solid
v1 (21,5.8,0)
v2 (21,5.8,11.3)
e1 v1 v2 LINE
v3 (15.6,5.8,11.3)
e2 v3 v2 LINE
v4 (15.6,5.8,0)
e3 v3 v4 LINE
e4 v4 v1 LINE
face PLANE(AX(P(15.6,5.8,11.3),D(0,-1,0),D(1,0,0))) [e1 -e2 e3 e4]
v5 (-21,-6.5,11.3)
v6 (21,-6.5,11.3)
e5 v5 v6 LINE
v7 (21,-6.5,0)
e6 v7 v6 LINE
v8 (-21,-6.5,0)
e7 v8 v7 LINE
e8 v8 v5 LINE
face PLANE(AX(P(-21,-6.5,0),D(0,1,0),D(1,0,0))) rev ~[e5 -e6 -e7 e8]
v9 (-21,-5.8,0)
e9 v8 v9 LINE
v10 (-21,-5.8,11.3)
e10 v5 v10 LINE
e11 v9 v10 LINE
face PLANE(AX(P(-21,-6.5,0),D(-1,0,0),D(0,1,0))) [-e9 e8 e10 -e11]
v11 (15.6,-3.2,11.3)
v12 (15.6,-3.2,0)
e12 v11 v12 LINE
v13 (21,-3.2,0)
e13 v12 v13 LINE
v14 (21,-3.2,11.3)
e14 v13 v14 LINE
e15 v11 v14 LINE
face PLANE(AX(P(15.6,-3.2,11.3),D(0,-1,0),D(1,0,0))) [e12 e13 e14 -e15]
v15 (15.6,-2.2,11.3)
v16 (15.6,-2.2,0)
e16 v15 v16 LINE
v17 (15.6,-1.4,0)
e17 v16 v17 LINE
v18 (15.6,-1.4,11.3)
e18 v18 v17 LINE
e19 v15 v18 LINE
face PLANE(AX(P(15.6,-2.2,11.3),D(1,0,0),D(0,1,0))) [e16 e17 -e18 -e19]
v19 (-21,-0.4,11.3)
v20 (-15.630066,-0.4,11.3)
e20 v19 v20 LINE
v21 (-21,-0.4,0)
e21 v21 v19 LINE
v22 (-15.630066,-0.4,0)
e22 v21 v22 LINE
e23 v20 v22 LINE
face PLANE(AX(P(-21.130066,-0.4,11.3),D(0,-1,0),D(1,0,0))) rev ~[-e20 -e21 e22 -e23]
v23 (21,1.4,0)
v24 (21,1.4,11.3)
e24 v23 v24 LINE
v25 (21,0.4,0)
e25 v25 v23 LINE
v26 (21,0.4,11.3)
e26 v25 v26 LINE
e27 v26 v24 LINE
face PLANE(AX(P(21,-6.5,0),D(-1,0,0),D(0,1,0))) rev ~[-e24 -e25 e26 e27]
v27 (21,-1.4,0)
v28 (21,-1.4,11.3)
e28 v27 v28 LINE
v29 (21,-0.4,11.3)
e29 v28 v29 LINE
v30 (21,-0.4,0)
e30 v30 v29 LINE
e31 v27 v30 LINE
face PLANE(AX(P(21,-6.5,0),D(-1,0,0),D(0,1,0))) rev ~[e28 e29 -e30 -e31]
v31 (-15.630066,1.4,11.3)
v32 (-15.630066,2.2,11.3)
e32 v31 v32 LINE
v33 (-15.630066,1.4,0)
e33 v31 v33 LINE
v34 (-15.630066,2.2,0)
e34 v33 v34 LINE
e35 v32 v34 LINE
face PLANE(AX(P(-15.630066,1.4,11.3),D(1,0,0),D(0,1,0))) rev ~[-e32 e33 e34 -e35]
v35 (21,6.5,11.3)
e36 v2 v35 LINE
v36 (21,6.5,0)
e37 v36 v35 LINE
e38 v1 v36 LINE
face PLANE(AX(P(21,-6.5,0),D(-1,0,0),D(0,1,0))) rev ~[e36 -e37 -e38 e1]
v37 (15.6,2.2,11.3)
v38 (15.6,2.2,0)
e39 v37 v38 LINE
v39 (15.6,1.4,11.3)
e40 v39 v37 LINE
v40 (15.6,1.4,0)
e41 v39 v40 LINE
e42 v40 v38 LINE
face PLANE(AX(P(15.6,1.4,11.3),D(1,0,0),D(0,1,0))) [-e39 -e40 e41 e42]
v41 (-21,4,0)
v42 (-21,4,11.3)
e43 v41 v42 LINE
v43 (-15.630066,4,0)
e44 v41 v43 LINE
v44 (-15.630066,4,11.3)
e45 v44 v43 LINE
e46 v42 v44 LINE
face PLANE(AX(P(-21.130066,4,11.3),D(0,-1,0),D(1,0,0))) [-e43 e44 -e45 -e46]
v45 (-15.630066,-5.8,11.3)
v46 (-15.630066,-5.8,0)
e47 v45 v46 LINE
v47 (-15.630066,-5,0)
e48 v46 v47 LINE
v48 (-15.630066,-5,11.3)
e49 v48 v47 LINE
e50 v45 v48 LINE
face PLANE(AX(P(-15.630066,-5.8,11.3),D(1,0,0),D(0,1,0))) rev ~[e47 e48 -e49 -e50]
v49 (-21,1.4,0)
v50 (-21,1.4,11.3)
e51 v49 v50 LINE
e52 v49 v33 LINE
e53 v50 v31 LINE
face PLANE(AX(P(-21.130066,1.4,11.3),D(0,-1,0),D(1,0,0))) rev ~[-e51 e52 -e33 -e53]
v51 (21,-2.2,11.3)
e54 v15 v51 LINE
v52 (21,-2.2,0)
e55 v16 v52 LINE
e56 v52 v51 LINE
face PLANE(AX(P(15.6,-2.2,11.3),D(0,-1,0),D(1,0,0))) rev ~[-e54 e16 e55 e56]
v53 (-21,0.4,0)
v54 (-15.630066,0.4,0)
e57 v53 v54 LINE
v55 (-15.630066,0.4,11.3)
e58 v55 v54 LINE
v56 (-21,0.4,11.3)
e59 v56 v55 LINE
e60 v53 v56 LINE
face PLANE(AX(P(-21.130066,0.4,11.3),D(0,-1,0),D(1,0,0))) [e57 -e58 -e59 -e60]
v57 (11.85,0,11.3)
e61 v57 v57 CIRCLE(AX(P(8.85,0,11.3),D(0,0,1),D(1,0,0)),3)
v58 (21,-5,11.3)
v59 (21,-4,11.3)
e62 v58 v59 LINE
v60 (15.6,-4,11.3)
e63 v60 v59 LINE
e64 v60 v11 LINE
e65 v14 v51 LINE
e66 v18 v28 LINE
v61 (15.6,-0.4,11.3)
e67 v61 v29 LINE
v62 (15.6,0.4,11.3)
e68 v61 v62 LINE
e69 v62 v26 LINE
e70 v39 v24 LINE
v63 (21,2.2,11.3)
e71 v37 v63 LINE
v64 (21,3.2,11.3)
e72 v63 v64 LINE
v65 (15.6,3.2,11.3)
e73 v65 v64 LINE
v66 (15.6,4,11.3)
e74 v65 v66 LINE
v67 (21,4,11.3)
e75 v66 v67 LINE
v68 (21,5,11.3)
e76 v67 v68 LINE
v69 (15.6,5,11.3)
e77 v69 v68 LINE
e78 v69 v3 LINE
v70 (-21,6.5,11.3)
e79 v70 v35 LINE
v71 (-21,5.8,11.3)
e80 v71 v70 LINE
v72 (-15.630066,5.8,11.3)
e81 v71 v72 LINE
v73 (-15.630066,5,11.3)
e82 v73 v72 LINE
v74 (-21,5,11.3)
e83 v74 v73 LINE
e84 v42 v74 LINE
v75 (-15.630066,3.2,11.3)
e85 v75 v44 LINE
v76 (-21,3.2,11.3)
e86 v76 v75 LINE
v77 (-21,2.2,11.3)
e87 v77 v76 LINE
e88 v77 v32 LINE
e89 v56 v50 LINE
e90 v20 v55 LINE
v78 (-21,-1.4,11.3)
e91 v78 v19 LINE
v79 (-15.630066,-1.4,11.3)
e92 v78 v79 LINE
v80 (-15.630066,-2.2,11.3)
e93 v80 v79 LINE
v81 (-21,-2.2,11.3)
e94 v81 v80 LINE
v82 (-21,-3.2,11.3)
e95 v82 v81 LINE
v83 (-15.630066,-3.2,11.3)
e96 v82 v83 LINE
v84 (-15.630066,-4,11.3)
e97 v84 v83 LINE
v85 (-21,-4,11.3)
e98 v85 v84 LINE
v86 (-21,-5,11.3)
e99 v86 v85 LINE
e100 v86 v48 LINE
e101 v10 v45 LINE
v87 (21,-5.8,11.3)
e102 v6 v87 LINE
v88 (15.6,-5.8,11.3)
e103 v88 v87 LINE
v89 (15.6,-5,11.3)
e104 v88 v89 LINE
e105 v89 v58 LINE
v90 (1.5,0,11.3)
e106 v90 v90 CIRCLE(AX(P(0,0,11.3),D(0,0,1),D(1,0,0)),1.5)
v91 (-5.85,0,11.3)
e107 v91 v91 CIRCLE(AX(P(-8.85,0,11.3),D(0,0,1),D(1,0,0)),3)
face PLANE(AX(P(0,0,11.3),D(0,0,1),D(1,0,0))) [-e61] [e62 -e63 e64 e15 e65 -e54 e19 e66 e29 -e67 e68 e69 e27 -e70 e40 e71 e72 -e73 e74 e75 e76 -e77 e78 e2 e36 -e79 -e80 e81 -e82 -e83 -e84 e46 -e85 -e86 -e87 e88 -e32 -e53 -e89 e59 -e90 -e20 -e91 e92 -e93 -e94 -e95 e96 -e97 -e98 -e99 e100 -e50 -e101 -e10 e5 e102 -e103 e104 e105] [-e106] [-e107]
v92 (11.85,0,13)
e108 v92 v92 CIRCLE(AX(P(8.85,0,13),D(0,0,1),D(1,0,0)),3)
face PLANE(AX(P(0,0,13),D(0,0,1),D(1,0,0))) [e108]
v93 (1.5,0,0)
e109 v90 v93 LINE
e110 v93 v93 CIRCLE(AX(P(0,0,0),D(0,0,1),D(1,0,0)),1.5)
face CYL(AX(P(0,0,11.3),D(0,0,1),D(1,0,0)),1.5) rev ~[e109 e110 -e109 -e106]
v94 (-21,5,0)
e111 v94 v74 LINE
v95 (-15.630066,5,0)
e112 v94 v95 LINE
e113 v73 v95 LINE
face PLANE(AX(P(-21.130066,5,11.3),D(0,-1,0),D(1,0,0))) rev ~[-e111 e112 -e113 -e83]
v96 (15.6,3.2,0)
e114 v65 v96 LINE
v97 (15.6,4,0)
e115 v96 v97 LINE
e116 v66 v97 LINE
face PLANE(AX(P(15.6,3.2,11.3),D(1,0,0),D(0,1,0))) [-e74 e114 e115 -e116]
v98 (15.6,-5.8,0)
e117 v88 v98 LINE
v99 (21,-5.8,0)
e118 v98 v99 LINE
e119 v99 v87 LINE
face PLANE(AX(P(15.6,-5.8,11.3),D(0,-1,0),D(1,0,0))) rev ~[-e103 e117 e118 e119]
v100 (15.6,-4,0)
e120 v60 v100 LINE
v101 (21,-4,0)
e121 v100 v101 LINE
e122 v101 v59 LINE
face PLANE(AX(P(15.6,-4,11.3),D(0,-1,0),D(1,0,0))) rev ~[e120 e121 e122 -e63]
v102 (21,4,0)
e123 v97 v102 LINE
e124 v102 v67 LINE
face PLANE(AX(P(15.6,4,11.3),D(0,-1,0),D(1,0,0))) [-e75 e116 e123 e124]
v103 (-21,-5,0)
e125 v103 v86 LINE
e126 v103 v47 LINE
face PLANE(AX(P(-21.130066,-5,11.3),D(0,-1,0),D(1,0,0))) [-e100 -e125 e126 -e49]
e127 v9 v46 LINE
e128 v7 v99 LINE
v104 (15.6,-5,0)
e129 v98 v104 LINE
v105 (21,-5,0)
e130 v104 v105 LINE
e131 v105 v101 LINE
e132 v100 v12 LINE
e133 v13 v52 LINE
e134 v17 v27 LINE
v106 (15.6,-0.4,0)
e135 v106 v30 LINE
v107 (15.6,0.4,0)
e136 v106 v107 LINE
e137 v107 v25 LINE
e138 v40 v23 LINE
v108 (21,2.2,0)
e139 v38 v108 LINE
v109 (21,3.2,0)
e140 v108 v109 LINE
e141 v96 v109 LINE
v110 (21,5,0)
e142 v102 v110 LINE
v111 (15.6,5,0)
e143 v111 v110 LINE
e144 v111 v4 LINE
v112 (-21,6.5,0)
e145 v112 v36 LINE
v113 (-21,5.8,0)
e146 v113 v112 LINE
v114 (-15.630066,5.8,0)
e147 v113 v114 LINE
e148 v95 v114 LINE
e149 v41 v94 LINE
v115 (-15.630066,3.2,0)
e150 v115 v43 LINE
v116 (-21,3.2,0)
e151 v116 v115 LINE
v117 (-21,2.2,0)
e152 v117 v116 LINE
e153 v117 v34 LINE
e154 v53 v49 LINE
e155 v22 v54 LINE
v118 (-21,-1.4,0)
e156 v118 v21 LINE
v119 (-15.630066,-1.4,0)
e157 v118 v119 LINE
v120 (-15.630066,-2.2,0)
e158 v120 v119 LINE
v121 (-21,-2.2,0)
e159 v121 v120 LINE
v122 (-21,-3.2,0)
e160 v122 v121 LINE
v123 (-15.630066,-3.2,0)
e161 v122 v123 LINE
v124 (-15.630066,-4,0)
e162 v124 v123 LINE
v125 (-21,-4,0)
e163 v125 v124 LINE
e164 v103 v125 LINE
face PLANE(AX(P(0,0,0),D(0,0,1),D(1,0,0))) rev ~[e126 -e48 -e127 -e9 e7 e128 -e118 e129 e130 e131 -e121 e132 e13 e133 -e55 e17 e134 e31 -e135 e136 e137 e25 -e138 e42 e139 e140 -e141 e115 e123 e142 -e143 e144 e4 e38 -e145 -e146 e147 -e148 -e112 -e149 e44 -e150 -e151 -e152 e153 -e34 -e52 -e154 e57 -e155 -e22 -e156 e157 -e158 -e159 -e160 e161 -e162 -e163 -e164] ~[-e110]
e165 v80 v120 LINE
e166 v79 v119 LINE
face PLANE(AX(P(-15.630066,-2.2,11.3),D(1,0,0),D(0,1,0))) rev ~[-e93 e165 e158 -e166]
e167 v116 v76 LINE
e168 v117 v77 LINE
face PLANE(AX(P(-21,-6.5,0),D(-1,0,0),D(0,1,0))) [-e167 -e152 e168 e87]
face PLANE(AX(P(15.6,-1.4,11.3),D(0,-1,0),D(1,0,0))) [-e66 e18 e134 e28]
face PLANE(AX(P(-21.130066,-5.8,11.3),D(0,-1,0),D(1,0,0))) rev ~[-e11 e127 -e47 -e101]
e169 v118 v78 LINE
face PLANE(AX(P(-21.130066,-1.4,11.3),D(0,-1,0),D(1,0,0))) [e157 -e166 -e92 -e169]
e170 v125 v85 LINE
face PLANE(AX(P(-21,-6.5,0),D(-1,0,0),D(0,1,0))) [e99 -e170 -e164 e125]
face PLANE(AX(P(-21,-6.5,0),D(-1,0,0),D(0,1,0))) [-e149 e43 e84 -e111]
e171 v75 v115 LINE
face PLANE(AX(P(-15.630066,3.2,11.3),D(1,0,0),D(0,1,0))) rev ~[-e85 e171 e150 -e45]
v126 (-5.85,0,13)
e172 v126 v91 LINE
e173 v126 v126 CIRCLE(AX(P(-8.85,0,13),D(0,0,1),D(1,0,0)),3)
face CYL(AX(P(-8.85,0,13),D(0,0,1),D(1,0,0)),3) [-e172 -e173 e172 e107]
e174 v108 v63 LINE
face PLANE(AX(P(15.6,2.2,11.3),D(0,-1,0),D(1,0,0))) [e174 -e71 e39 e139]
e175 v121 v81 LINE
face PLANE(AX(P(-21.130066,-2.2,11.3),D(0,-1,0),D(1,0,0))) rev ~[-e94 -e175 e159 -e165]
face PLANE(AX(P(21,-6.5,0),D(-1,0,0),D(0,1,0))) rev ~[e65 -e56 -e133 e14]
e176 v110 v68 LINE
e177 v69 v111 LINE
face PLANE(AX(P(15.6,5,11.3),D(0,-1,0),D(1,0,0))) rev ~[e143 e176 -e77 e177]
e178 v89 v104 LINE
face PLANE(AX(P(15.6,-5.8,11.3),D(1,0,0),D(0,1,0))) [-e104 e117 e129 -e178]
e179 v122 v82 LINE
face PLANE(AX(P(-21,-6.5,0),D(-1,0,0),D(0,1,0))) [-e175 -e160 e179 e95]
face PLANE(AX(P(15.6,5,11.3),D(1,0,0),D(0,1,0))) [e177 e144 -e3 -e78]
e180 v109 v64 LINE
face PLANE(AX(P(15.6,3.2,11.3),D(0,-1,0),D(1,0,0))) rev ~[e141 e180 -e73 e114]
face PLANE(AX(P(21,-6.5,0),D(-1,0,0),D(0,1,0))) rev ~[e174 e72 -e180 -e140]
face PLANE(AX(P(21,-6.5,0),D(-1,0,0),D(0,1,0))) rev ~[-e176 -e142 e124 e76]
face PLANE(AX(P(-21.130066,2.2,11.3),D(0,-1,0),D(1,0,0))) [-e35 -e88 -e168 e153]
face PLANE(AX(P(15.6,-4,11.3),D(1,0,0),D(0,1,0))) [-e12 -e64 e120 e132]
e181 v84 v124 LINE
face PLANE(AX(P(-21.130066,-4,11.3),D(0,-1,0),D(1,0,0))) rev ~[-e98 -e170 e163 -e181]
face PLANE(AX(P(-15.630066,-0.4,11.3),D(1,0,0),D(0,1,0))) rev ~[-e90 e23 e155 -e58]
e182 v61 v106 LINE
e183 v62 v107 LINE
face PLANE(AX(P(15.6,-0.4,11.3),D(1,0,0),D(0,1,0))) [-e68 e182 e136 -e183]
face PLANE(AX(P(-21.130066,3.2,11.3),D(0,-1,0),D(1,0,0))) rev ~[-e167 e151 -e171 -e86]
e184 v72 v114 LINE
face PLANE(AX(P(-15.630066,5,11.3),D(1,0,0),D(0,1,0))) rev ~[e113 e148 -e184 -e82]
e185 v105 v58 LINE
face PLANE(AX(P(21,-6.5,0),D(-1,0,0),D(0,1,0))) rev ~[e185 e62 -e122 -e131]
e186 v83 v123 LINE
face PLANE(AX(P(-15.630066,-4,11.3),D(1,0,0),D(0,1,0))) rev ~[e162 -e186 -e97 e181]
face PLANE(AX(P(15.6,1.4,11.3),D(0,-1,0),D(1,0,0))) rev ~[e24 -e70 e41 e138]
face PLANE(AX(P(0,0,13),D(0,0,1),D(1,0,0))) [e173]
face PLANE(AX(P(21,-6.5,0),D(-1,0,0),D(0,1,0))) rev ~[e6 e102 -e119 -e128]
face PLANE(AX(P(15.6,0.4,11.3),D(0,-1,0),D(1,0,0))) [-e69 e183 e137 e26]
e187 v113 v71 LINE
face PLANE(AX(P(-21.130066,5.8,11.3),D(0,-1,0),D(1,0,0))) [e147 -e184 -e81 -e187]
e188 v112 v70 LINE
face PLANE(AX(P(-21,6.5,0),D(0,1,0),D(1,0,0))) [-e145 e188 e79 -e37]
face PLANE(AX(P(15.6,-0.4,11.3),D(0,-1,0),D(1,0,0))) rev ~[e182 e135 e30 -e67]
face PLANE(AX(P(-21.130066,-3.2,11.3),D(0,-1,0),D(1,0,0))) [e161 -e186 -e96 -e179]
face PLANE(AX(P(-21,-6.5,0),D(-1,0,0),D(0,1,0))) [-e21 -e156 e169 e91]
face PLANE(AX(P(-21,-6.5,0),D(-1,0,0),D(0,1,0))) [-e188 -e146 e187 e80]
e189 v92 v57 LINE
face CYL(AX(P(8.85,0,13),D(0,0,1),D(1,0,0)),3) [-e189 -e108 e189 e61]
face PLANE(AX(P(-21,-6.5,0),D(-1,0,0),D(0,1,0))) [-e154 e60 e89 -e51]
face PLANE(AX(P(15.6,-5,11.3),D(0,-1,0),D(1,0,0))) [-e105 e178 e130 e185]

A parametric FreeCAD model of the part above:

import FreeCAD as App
import Part
import Sketcher

V = App.Vector
Q = App.Units.Quantity


def add_polygon(sketch, points):
    """Adds a closed chain of lines whose ends are joined by coincident constraints."""
    first, n = sketch.GeometryCount, len(points)
    for a, b in zip(points, points[1:] + points[:1]):
        sketch.addGeometry(Part.LineSegment(App.Vector(*a, 0), App.Vector(*b, 0)), False)
    for i in range(n):
        sketch.addConstraint(Sketcher.Constraint("Coincident", first + i, 2, first + (i + 1) % n, 1))

doc = App.newDocument("Part")
params = doc.addObject("Spreadsheet::Sheet", "Params")
for row, (alias, value) in enumerate([
    ("sketch1_width", "42 mm"),
    ("sketch1_height", "13 mm"),
    ("pad1_length", "13 mm"),
    ("sketch2_diameter", "6 mm"),
    ("sketch2_width", "42 mm"),
    ("sketch2_height", "13 mm"),
    ("pocket1_length", "1.7 mm"),
    ("sketch3_width", "5.5 mm"),
    ("sketch3_height", "0.8 mm"),
    ("sketch4_diameter", "3 mm"),
], start=1):
    params.set(f"A{row}", alias)
    params.set(f"B{row}", "=" + value)
    params.setAlias(f"B{row}", alias)

body = doc.addObject("PartDesign::Body", "Body")

# Sketch on XY plane
sketch1 = body.newObject("Sketcher::SketchObject", "Sketch")
sketch1.AttachmentSupport = (doc.getObject("XY_Plane"), [""])
sketch1.MapMode = "FlatFace"
add_polygon(sketch1, [(-21, 6.5), (-21, -6.5), (21, -6.5), (21, 6.5)])  # lines 0-3
sketch1.addConstraint([
    Sketcher.Constraint("Vertical", 0),
    Sketcher.Constraint("Horizontal", 1),
    Sketcher.Constraint("Vertical", 2),
    Sketcher.Constraint("Horizontal", 3),
    Sketcher.Constraint("Symmetric", 0, 2, 2, 2, -1, 1),
    Sketcher.Constraint("DistanceX", 1, 1, 1, 2, Q("42 mm")),
    Sketcher.Constraint("DistanceY", 0, 2, 0, 1, Q("13 mm")),
])
sketch1.setExpression("Constraints[9]", "Params.sketch1_width")
sketch1.setExpression("Constraints[10]", "Params.sketch1_height")
pad1 = body.newObject("PartDesign::Pad", "Pad")
pad1.Profile = sketch1
pad1.setExpression("Length", "Params.pad1_length")

# Sketch on XY plane
sketch2 = body.newObject("Sketcher::SketchObject", "Sketch001")
sketch2.AttachmentSupport = (doc.getObject("XY_Plane"), [""])
sketch2.MapMode = "FlatFace"
sketch2.AttachmentOffset = App.Placement(V(0, 0, 13), App.Rotation())
add_polygon(sketch2, [(-21, 6.5), (-21, -6.5), (21, -6.5), (21, 6.5)])  # lines 0-3
sketch2.addGeometry(Part.Circle(V(-8.85, 0, 0), V(0, 0, 1), 3), False)  # 4
sketch2.addGeometry(Part.Circle(V(8.85, 0, 0), V(0, 0, 1), 3), False)  # 5
sketch2.addConstraint([
    Sketcher.Constraint("Vertical", 0),
    Sketcher.Constraint("Horizontal", 1),
    Sketcher.Constraint("Vertical", 2),
    Sketcher.Constraint("Horizontal", 3),
    Sketcher.Constraint("Equal", 4, 5),
    Sketcher.Constraint("Symmetric", 4, 3, 5, 3, -1, 1),
    Sketcher.Constraint("Symmetric", 0, 2, 2, 2, -1, 1),
    Sketcher.Constraint("PointOnObject", 4, 3, -1),
    Sketcher.Constraint("Diameter", 4, Q("6 mm")),
    Sketcher.Constraint("DistanceX", 1, 1, 1, 2, Q("42 mm")),
    Sketcher.Constraint("DistanceY", 0, 2, 0, 1, Q("13 mm")),
    Sketcher.Constraint("DistanceX", 4, 3, 5, 3, Q("17.7 mm")),
])
sketch2.setExpression("Constraints[12]", "Params.sketch2_diameter")
sketch2.setExpression("Constraints[13]", "Params.sketch2_width")
sketch2.setExpression("Constraints[14]", "Params.sketch2_height")
pocket1 = body.newObject("PartDesign::Pocket", "Pocket")
pocket1.Profile = sketch2
pocket1.setExpression("Length", "Params.pocket1_length")

# Sketch on XY plane
sketch3 = body.newObject("Sketcher::SketchObject", "Sketch002")
sketch3.AttachmentSupport = (doc.getObject("XY_Plane"), [""])
sketch3.MapMode = "FlatFace"
sketch3.AttachmentOffset = App.Placement(V(0, 0, 11.3), App.Rotation())
add_polygon(sketch3, [(15.6, 5.8), (15.6, 5), (21.1, 5), (21.1, 5.8)])  # lines 0-3
add_polygon(sketch3, [(15.6, 4), (15.6, 3.2), (21.1, 3.2), (21.1, 4)])  # lines 4-7
add_polygon(sketch3, [(15.6, 2.2), (15.6, 1.4), (21.1, 1.4), (21.1, 2.2)])  # lines 8-11
add_polygon(sketch3, [(15.6, 0.4), (15.6, -0.4), (21.1, -0.4), (21.1, 0.4)])  # lines 12-15
add_polygon(sketch3, [(15.6, -1.4), (15.6, -2.2), (21.1, -2.2), (21.1, -1.4)])  # lines 16-19
add_polygon(sketch3, [(15.6, -3.2), (15.6, -4), (21.1, -4), (21.1, -3.2)])  # lines 20-23
add_polygon(sketch3, [(15.6, -5), (15.6, -5.8), (21.1, -5.8), (21.1, -5)])  # lines 24-27
add_polygon(sketch3, [(-21.130066, 5.8), (-21.130066, 5), (-15.630066, 5), (-15.630066, 5.8)])  # lines 28-31
add_polygon(sketch3, [(-21.130066, 4), (-21.130066, 3.2), (-15.630066, 3.2), (-15.630066, 4)])  # lines 32-35
add_polygon(sketch3, [(-21.130066, 2.2), (-21.130066, 1.4), (-15.630066, 1.4), (-15.630066, 2.2)])  # lines 36-39
add_polygon(sketch3, [(-21.130066, 0.4), (-21.130066, -0.4), (-15.630066, -0.4), (-15.630066, 0.4)])  # lines 40-43
add_polygon(sketch3, [(-21.130066, -1.4), (-21.130066, -2.2), (-15.630066, -2.2), (-15.630066, -1.4)])  # lines 44-47
add_polygon(sketch3, [(-21.130066, -3.2), (-21.130066, -4), (-15.630066, -4), (-15.630066, -3.2)])  # lines 48-51
add_polygon(sketch3, [(-21.130066, -5), (-21.130066, -5.8), (-15.630066, -5.8), (-15.630066, -5)])  # lines 52-55
sketch3.addConstraint([
    Sketcher.Constraint("Vertical", 0),
    Sketcher.Constraint("Horizontal", 1),
    Sketcher.Constraint("Vertical", 2),
    Sketcher.Constraint("Horizontal", 3),
    Sketcher.Constraint("Vertical", 4),
    Sketcher.Constraint("Horizontal", 5),
    Sketcher.Constraint("Vertical", 6),
    Sketcher.Constraint("Horizontal", 7),
    Sketcher.Constraint("Vertical", 8),
    Sketcher.Constraint("Horizontal", 9),
    Sketcher.Constraint("Vertical", 10),
    Sketcher.Constraint("Horizontal", 11),
    Sketcher.Constraint("Vertical", 12),
    Sketcher.Constraint("Horizontal", 13),
    Sketcher.Constraint("Vertical", 14),
    Sketcher.Constraint("Horizontal", 15),
    Sketcher.Constraint("Vertical", 16),
    Sketcher.Constraint("Horizontal", 17),
    Sketcher.Constraint("Vertical", 18),
    Sketcher.Constraint("Horizontal", 19),
    Sketcher.Constraint("Vertical", 20),
    Sketcher.Constraint("Horizontal", 21),
    Sketcher.Constraint("Vertical", 22),
    Sketcher.Constraint("Horizontal", 23),
    Sketcher.Constraint("Vertical", 24),
    Sketcher.Constraint("Horizontal", 25),
    Sketcher.Constraint("Vertical", 26),
    Sketcher.Constraint("Horizontal", 27),
    Sketcher.Constraint("Vertical", 28),
    Sketcher.Constraint("Horizontal", 29),
    Sketcher.Constraint("Vertical", 30),
    Sketcher.Constraint("Horizontal", 31),
    Sketcher.Constraint("Vertical", 32),
    Sketcher.Constraint("Horizontal", 33),
    Sketcher.Constraint("Vertical", 34),
    Sketcher.Constraint("Horizontal", 35),
    Sketcher.Constraint("Vertical", 36),
    Sketcher.Constraint("Horizontal", 37),
    Sketcher.Constraint("Vertical", 38),
    Sketcher.Constraint("Horizontal", 39),
    Sketcher.Constraint("Vertical", 40),
    Sketcher.Constraint("Horizontal", 41),
    Sketcher.Constraint("Vertical", 42),
    Sketcher.Constraint("Horizontal", 43),
    Sketcher.Constraint("Vertical", 44),
    Sketcher.Constraint("Horizontal", 45),
    Sketcher.Constraint("Vertical", 46),
    Sketcher.Constraint("Horizontal", 47),
    Sketcher.Constraint("Vertical", 48),
    Sketcher.Constraint("Horizontal", 49),
    Sketcher.Constraint("Vertical", 50),
    Sketcher.Constraint("Horizontal", 51),
    Sketcher.Constraint("Vertical", 52),
    Sketcher.Constraint("Horizontal", 53),
    Sketcher.Constraint("Vertical", 54),
    Sketcher.Constraint("Horizontal", 55),
    Sketcher.Constraint("Symmetric", 11, 2, 16, 2, -1),
    Sketcher.Constraint("Symmetric", 9, 2, 18, 2, -1),
    Sketcher.Constraint("Symmetric", 7, 2, 20, 2, -1),
    Sketcher.Constraint("Symmetric", 5, 2, 22, 2, -1),
    Sketcher.Constraint("Symmetric", 3, 2, 24, 2, -1),
    Sketcher.Constraint("Symmetric", 1, 2, 26, 2, -1),
    Sketcher.Constraint("Symmetric", 39, 2, 44, 2, -1),
    Sketcher.Constraint("Symmetric", 37, 2, 46, 2, -1),
    Sketcher.Constraint("Symmetric", 35, 2, 48, 2, -1),
    Sketcher.Constraint("Symmetric", 33, 2, 50, 2, -1),
    Sketcher.Constraint("Symmetric", 31, 2, 52, 2, -1),
    Sketcher.Constraint("Symmetric", 29, 2, 54, 2, -1),
    Sketcher.Constraint("Horizontal", 1, 2, 28, 2),
    Sketcher.Constraint("Horizontal", 3, 2, 30, 2),
    Sketcher.Constraint("Horizontal", 5, 2, 32, 2),
    Sketcher.Constraint("Horizontal", 7, 2, 34, 2),
    Sketcher.Constraint("Horizontal", 9, 2, 36, 2),
    Sketcher.Constraint("Horizontal", 11, 2, 38, 2),
    Sketcher.Constraint("Horizontal", 13, 2, 40, 2),
    Sketcher.Constraint("Horizontal", 15, 2, 42, 2),
    Sketcher.Constraint("Vertical", 3, 2, 4, 2),
    Sketcher.Constraint("Vertical", 2, 2, 5, 2),
    Sketcher.Constraint("Vertical", 7, 2, 8, 2),
    Sketcher.Constraint("Vertical", 6, 2, 9, 2),
    Sketcher.Constraint("Vertical", 11, 2, 12, 2),
    Sketcher.Constraint("Vertical", 10, 2, 13, 2),
    Sketcher.Constraint("Vertical", 31, 2, 32, 2),
    Sketcher.Constraint("Vertical", 30, 2, 33, 2),
    Sketcher.Constraint("Vertical", 35, 2, 36, 2),
    Sketcher.Constraint("Vertical", 34, 2, 37, 2),
    Sketcher.Constraint("Vertical", 39, 2, 40, 2),
    Sketcher.Constraint("Vertical", 38, 2, 41, 2),
    Sketcher.Constraint("Equal", 27, 29),
    Sketcher.Constraint("Equal", 2, 4),
    Sketcher.Constraint("Equal", 6, 8),
    Sketcher.Constraint("Equal", 10, 12),
    Sketcher.Constraint("DistanceX", 1, 1, 1, 2, Q("5.5 mm")),
    Sketcher.Constraint("DistanceY", 0, 2, 0, 1, Q("0.8 mm")),
    Sketcher.Constraint("DistanceY", -1, 1, 0, 2, Q("5 mm")),
    Sketcher.Constraint("DistanceY", -1, 1, 6, 2, Q("4 mm")),
    Sketcher.Constraint("DistanceY", 10, 2, 5, 2, Q("1 mm")),
    Sketcher.Constraint("DistanceY", 14, 2, 9, 2, Q("1 mm")),
    Sketcher.Constraint("DistanceX", -1, 1, 0, 2, Q("15.6 mm")),
    Sketcher.Constraint("DistanceX", 28, 2, -1, 1, Q("21.130066 mm")),
])
sketch3.setExpression("Constraints[148]", "Params.sketch3_width")
sketch3.setExpression("Constraints[149]", "Params.sketch3_height")
pocket2 = body.newObject("PartDesign::Pocket", "Pocket001")
pocket2.Profile = sketch3
pocket2.Type = "ThroughAll"

# Sketch on XY plane
sketch4 = body.newObject("Sketcher::SketchObject", "Sketch003")
sketch4.AttachmentSupport = (doc.getObject("XY_Plane"), [""])
sketch4.MapMode = "FlatFace"
sketch4.AttachmentOffset = App.Placement(V(0, 0, 11.3), App.Rotation())
sketch4.addGeometry(Part.Circle(V(0, 0, 0), V(0, 0, 1), 1.5), False)
sketch4.addConstraint([
    Sketcher.Constraint("Coincident", 0, 3, -1, 1),
    Sketcher.Constraint("Diameter", 0, Q("3 mm")),
])
sketch4.setExpression("Constraints[1]", "Params.sketch4_diameter")
pocket3 = body.newObject("PartDesign::Pocket", "Pocket002")
pocket3.Profile = sketch4
pocket3.Type = "ThroughAll"

doc.recompute()
